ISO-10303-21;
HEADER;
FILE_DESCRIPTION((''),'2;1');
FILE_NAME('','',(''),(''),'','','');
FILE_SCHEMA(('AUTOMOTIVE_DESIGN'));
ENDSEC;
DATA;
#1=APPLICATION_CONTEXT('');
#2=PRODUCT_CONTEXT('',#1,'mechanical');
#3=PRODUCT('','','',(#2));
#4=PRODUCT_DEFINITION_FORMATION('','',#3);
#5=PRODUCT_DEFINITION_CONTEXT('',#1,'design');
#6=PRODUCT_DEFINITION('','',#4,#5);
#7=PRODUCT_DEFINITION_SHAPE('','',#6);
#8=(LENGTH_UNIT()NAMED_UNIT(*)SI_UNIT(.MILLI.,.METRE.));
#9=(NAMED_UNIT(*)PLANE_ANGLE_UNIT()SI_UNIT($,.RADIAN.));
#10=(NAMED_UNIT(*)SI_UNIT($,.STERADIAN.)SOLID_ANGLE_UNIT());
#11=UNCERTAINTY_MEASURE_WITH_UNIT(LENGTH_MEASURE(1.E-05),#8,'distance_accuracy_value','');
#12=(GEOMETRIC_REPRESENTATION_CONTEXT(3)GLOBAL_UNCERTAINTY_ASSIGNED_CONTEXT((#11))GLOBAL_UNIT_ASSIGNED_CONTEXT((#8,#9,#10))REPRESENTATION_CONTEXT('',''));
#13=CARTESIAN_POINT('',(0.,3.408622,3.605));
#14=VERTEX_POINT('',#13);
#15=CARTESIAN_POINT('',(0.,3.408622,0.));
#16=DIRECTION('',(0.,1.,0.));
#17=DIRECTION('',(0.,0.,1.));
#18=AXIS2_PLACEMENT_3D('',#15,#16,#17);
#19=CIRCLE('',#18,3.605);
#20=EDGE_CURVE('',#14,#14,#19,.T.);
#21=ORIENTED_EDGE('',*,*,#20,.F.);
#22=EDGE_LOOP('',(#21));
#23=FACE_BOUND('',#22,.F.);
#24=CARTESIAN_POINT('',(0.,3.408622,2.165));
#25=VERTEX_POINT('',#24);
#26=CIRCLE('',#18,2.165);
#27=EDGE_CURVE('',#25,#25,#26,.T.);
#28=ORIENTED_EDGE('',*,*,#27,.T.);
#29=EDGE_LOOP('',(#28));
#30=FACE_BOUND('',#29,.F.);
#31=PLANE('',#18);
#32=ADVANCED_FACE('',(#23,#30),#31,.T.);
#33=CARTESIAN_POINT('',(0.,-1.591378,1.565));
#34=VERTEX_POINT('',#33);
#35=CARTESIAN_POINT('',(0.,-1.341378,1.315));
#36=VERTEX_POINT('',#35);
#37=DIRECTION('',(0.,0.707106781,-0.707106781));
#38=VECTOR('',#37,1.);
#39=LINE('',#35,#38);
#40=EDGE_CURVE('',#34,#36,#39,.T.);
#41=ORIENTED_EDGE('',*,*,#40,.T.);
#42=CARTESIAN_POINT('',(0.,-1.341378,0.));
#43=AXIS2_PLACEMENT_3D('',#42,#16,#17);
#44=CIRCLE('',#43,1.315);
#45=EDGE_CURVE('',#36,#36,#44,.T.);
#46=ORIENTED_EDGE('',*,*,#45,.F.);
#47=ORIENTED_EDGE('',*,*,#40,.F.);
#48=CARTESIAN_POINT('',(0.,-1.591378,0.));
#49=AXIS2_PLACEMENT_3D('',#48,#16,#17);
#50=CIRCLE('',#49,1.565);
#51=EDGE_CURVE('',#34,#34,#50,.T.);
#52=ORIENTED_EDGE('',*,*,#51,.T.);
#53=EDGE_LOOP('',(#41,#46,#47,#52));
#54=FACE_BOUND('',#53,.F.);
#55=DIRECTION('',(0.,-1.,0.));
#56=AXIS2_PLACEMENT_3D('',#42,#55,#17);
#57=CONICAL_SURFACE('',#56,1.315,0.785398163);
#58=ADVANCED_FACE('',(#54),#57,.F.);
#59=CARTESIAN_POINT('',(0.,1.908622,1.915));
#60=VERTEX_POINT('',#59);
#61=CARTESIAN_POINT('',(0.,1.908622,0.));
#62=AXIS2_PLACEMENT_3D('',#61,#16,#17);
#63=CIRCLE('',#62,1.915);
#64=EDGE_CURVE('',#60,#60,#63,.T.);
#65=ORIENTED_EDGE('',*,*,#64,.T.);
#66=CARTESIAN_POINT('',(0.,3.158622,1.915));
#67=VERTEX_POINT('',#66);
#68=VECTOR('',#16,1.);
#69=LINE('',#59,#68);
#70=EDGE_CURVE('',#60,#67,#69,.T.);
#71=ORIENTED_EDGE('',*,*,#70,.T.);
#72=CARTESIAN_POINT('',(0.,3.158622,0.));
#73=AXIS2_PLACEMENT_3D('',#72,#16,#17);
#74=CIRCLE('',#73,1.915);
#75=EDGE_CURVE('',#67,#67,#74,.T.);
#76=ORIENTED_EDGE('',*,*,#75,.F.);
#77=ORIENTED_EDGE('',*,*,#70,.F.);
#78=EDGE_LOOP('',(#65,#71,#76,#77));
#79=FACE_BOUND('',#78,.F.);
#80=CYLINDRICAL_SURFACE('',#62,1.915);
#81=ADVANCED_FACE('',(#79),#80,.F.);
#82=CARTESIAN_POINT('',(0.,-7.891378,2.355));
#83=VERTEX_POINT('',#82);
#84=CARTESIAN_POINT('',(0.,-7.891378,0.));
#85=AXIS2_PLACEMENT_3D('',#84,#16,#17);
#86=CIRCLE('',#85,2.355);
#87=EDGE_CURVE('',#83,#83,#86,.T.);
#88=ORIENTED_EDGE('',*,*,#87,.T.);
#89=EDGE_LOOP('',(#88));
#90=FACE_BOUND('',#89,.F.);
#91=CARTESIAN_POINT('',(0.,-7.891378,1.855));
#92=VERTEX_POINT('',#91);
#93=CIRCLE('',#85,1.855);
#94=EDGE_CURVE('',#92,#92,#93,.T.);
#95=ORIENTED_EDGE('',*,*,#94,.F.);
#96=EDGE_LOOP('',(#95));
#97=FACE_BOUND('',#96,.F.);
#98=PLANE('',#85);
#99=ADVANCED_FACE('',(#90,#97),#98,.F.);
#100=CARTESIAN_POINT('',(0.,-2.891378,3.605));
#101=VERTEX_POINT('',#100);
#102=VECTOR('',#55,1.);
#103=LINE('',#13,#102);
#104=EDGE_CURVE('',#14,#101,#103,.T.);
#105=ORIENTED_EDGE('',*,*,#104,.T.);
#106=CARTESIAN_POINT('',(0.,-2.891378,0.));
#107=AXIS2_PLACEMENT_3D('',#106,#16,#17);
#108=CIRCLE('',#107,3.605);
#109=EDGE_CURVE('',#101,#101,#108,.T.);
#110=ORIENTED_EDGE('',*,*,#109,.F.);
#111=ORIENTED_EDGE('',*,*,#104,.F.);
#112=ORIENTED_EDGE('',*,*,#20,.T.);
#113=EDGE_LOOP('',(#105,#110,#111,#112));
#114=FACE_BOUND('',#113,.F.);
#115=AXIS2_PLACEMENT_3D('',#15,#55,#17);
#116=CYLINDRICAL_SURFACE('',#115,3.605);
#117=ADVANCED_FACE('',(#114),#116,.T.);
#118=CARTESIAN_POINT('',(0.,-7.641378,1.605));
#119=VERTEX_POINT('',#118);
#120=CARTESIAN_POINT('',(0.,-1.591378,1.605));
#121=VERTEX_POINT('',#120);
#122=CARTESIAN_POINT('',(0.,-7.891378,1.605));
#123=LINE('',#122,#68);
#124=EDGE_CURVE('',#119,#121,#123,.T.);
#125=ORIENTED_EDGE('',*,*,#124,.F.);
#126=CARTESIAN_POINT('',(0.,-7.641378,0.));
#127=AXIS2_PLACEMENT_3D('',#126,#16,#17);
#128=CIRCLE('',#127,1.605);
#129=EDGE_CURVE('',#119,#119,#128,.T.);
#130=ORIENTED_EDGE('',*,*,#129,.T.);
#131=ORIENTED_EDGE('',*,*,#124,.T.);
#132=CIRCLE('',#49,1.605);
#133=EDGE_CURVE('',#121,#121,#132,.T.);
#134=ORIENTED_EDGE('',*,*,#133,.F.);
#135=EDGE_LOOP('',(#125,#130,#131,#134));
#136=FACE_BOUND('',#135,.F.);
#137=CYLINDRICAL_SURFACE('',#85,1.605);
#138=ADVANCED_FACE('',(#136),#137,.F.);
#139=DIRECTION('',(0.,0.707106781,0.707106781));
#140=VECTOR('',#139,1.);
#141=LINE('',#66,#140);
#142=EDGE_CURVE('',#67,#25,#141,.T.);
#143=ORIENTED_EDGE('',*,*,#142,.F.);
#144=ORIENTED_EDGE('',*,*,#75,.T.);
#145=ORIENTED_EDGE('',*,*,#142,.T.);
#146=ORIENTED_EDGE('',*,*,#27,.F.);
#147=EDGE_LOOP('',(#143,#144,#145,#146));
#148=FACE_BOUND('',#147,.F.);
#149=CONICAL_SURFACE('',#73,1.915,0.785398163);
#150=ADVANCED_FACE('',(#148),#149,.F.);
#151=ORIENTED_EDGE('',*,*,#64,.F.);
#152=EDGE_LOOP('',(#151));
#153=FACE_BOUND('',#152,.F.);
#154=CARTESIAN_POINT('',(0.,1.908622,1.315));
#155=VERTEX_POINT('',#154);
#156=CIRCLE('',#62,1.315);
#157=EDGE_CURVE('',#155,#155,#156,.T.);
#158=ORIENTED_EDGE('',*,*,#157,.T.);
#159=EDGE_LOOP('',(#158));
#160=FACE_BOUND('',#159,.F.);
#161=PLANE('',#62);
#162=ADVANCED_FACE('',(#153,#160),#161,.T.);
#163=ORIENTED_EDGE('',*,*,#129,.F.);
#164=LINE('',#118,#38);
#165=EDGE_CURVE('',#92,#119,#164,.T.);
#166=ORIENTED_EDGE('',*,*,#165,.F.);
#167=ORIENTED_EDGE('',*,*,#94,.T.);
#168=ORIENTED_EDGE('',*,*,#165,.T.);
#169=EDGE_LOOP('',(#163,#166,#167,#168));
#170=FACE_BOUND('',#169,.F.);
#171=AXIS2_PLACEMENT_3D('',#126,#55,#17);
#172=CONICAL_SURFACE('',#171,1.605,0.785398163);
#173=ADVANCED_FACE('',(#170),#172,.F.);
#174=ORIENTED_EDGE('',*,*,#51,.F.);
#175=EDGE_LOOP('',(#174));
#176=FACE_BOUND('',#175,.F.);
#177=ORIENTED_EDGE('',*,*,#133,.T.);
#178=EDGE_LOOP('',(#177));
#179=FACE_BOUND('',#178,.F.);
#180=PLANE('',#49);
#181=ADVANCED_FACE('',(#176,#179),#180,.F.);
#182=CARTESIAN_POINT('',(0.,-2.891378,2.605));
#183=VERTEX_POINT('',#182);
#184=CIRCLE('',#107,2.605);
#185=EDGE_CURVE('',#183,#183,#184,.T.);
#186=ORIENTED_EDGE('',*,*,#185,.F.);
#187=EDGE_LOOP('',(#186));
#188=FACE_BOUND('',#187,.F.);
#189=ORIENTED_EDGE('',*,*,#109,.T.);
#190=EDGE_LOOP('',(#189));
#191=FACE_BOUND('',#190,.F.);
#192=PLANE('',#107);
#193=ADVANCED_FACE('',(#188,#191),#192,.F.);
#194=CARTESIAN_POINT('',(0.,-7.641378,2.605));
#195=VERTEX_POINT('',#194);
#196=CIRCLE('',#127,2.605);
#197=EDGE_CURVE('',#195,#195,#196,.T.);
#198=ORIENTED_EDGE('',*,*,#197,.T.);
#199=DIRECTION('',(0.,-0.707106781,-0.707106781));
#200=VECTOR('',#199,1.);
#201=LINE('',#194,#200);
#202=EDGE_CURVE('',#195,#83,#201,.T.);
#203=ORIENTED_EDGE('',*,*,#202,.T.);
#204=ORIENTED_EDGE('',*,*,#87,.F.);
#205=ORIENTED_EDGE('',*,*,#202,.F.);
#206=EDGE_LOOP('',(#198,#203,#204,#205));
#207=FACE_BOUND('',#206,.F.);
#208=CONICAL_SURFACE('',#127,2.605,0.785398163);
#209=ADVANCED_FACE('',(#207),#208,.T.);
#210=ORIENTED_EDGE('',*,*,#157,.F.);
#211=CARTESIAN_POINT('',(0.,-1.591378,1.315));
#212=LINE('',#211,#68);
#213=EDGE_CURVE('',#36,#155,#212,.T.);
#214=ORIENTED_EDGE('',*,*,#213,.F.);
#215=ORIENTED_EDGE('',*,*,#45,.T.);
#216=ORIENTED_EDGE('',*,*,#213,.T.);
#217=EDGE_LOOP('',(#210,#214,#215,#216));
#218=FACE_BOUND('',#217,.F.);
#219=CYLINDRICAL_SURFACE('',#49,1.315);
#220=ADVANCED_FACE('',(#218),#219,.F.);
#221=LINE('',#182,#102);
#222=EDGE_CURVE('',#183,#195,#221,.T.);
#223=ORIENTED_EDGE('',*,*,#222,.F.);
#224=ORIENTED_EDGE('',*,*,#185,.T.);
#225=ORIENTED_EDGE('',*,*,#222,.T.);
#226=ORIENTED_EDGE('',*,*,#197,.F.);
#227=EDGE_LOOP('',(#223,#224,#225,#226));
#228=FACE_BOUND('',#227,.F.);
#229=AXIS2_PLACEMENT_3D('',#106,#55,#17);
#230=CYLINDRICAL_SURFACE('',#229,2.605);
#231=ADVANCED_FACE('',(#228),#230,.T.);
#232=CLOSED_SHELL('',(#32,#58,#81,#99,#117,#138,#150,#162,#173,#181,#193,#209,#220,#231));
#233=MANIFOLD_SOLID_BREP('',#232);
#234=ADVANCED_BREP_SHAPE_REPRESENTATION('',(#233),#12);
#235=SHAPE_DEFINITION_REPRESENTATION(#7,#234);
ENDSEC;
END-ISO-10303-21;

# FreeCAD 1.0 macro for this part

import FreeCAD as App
import Part
import Sketcher

V = App.Vector
Q = App.Units.Quantity


def edges_at(feature, points):
    """Names of the edges that pass closest to the given points."""
    edges = feature.Shape.Edges
    near = lambda p: min(range(len(edges)), key=lambda i: edges[i].distToShape(Part.Vertex(*p))[0])
    return sorted({f"Edge{near(p) + 1}" for p in points})

doc = App.newDocument("Part")
body = doc.addObject("PartDesign::Body", "Body")

# Sketch on YZ plane
sketch1 = body.newObject("Sketcher::SketchObject", "Sketch")
sketch1.AttachmentSupport = (doc.getObject("YZ_Plane"), [""])
sketch1.MapMode = "FlatFace"
sketch1.addGeometry([
    Part.LineSegment(V(-2.89, 2.6, 0), V(-7.89, 2.6, 0)),  # 0
    Part.LineSegment(V(-7.89, 2.6, 0), V(-7.89, 1.6, 0)),  # 1
    Part.LineSegment(V(-7.89, 1.6, 0), V(-1.59, 1.6, 0)),  # 2
    Part.LineSegment(V(-1.59, 1.6, 0), V(-1.59, 1.31, 0)),  # 3
    Part.LineSegment(V(-1.59, 1.31, 0), V(1.91, 1.31, 0)),  # 4
    Part.LineSegment(V(1.91, 1.31, 0), V(1.91, 1.92, 0)),  # 5
    Part.LineSegment(V(1.91, 1.92, 0), V(3.41, 1.92, 0)),  # 6
    Part.LineSegment(V(3.41, 1.92, 0), V(3.41, 3.6, 0)),  # 7
    Part.LineSegment(V(3.41, 3.6, 0), V(-2.89, 3.6, 0)),  # 8
    Part.LineSegment(V(-2.89, 3.6, 0), V(-2.89, 2.6, 0)),  # 9
], False)
sketch1.addConstraint([
    Sketcher.Constraint("Coincident", 0, 2, 1, 1),
    Sketcher.Constraint("Coincident", 1, 2, 2, 1),
    Sketcher.Constraint("Coincident", 2, 2, 3, 1),
    Sketcher.Constraint("Coincident", 3, 2, 4, 1),
    Sketcher.Constraint("Coincident", 4, 2, 5, 1),
    Sketcher.Constraint("Coincident", 5, 2, 6, 1),
    Sketcher.Constraint("Coincident", 6, 2, 7, 1),
    Sketcher.Constraint("Coincident", 7, 2, 8, 1),
    Sketcher.Constraint("Coincident", 8, 2, 9, 1),
    Sketcher.Constraint("Coincident", 9, 2, 0, 1),
    Sketcher.Constraint("Horizontal", 0),
    Sketcher.Constraint("Vertical", 1),
    Sketcher.Constraint("Horizontal", 2),
    Sketcher.Constraint("Vertical", 3),
    Sketcher.Constraint("Horizontal", 4),
    Sketcher.Constraint("Vertical", 5),
    Sketcher.Constraint("Horizontal", 6),
    Sketcher.Constraint("Vertical", 7),
    Sketcher.Constraint("Horizontal", 8),
    Sketcher.Constraint("Vertical", 9),
    Sketcher.Constraint("Equal", 2, 8),
    Sketcher.Constraint("Equal", 1, 9),
    Sketcher.Constraint("DistanceX", 0, 2, 0, 1, Q("5 mm")),
    Sketcher.Constraint("DistanceY", 1, 2, 1, 1, Q("1 mm")),
    Sketcher.Constraint("DistanceX", 2, 1, 2, 2, Q("6.3 mm")),
    Sketcher.Constraint("DistanceX", 4, 1, 4, 2, Q("3.5 mm")),
    Sketcher.Constraint("DistanceY", 5, 1, 5, 2, Q("0.6 mm")),
    Sketcher.Constraint("DistanceY", 3, 2, 3, 1, Q("0.29 mm")),
    Sketcher.Constraint("DistanceY", -1, 1, 0, 2, Q("2.605 mm")),
    Sketcher.Constraint("DistanceX", -1, 1, 6, 2, Q("3.408622 mm")),
])
revolution = body.newObject("PartDesign::Revolution", "Revolution")
revolution.Profile = sketch1
revolution.ReferenceAxis = (sketch1, ["H_Axis"])
revolution.Angle = 360
doc.recompute()

chamfer = body.newObject("PartDesign::Chamfer", "Chamfer")
chamfer.Base = (revolution, edges_at(revolution, [
    (0, 3.409, -1.915),
    (0, -7.891, -1.605),
    (0, -7.891, -2.605),
    (0, -1.591, -1.315),
]))
chamfer.Size = 0.25

doc.recompute()
